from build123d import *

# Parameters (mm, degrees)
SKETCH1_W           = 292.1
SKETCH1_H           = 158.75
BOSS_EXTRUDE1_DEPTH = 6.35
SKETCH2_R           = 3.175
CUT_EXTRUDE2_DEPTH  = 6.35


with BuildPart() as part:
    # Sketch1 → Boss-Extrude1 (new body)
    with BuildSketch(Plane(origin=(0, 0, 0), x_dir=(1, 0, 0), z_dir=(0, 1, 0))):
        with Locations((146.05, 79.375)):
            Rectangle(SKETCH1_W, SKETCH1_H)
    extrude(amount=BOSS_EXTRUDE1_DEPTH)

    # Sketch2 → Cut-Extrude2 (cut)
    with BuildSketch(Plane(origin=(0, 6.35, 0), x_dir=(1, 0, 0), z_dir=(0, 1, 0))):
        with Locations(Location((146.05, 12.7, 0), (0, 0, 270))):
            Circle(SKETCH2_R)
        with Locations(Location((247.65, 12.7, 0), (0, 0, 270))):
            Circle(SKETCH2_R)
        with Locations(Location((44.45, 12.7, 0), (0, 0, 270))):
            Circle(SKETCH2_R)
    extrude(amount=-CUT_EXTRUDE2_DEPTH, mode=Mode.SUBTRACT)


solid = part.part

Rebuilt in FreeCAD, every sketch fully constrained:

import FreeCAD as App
import Part
import Sketcher

V = App.Vector
Q = App.Units.Quantity

doc = App.newDocument("Part")
body = doc.addObject("PartDesign::Body", "Body")

sketch1 = doc.addObject("Sketcher::SketchObject", "Sketch")
body.addObject(sketch1)
sketch1.AttachmentSupport = (doc.XZ_Plane, [""])
sketch1.MapMode = "FlatFace"
sketch1.addGeometry(Part.LineSegment(V(0, -159, 0), V(0, 0, 0)), False)
sketch1.addGeometry(Part.LineSegment(V(0, 0, 0), V(292, 0, 0)), False)
sketch1.addGeometry(Part.LineSegment(V(292, 0, 0), V(292, -159, 0)), False)
sketch1.addGeometry(Part.LineSegment(V(292, -159, 0), V(0, -159, 0)), False)
sketch1.addConstraint(Sketcher.Constraint("Coincident", 0, 2, 1, 1))
sketch1.addConstraint(Sketcher.Constraint("Coincident", 1, 2, 2, 1))
sketch1.addConstraint(Sketcher.Constraint("Coincident", 2, 2, 3, 1))
sketch1.addConstraint(Sketcher.Constraint("Coincident", 3, 2, 0, 1))
sketch1.addConstraint(Sketcher.Constraint("Vertical", 0))
sketch1.addConstraint(Sketcher.Constraint("Horizontal", 1))
sketch1.addConstraint(Sketcher.Constraint("Vertical", 2))
sketch1.addConstraint(Sketcher.Constraint("Horizontal", 3))
sketch1.addConstraint(Sketcher.Constraint("Coincident", 0, 2, -1, 1))
sketch1.addConstraint(Sketcher.Constraint("DistanceX", 1, 1, 1, 2, Q("11.5 in")))
sketch1.addConstraint(Sketcher.Constraint("DistanceY", 0, 1, 0, 2, Q("6.25 in")))
pad1 = doc.addObject("PartDesign::Pad", "Pad")
body.addObject(pad1)
pad1.Profile = sketch1
pad1.Length = Q("0.25 in")
pad1.Reversed = True

sketch2 = doc.addObject("Sketcher::SketchObject", "Sketch001")
body.addObject(sketch2)
sketch2.AttachmentSupport = (doc.XZ_Plane, [""])
sketch2.MapMode = "FlatFace"
sketch2.AttachmentOffset = App.Placement(V(0, 0, -0.25 * 25.4), App.Rotation())
sketch2.addGeometry(Part.Circle(V(146.1, -12.7, 0), V(0, 0, 1), 3.2), False)
sketch2.addGeometry(Part.Circle(V(247.7, -12.7, 0), V(0, 0, 1), 3.2), False)
sketch2.addGeometry(Part.Circle(V(44.5, -12.7, 0), V(0, 0, 1), 3.2), False)
sketch2.addConstraint(Sketcher.Constraint("Equal", 0, 1))
sketch2.addConstraint(Sketcher.Constraint("Equal", 1, 2))
sketch2.addConstraint(Sketcher.Constraint("Horizontal", 0, 3, 1, 3))
sketch2.addConstraint(Sketcher.Constraint("Horizontal", 1, 3, 2, 3))
sketch2.addConstraint(Sketcher.Constraint("Diameter", 0, Q("0.25 in")))
sketch2.addConstraint(Sketcher.Constraint("DistanceX", 0, 3, 1, 3, Q("4 in")))
sketch2.addConstraint(Sketcher.Constraint("DistanceX", 2, 3, 0, 3, Q("4 in")))
sketch2.addConstraint(Sketcher.Constraint("DistanceY", 0, 3, -1, 1, Q("0.5 in")))
sketch2.addConstraint(Sketcher.Constraint("DistanceX", -1, 1, 0, 3, Q("5.75 in")))
pocket1 = doc.addObject("PartDesign::Pocket", "Pocket")
body.addObject(pocket1)
pocket1.Profile = sketch2
pocket1.Length = Q("0.25 in")
pocket1.Reversed = True

doc.recompute()
